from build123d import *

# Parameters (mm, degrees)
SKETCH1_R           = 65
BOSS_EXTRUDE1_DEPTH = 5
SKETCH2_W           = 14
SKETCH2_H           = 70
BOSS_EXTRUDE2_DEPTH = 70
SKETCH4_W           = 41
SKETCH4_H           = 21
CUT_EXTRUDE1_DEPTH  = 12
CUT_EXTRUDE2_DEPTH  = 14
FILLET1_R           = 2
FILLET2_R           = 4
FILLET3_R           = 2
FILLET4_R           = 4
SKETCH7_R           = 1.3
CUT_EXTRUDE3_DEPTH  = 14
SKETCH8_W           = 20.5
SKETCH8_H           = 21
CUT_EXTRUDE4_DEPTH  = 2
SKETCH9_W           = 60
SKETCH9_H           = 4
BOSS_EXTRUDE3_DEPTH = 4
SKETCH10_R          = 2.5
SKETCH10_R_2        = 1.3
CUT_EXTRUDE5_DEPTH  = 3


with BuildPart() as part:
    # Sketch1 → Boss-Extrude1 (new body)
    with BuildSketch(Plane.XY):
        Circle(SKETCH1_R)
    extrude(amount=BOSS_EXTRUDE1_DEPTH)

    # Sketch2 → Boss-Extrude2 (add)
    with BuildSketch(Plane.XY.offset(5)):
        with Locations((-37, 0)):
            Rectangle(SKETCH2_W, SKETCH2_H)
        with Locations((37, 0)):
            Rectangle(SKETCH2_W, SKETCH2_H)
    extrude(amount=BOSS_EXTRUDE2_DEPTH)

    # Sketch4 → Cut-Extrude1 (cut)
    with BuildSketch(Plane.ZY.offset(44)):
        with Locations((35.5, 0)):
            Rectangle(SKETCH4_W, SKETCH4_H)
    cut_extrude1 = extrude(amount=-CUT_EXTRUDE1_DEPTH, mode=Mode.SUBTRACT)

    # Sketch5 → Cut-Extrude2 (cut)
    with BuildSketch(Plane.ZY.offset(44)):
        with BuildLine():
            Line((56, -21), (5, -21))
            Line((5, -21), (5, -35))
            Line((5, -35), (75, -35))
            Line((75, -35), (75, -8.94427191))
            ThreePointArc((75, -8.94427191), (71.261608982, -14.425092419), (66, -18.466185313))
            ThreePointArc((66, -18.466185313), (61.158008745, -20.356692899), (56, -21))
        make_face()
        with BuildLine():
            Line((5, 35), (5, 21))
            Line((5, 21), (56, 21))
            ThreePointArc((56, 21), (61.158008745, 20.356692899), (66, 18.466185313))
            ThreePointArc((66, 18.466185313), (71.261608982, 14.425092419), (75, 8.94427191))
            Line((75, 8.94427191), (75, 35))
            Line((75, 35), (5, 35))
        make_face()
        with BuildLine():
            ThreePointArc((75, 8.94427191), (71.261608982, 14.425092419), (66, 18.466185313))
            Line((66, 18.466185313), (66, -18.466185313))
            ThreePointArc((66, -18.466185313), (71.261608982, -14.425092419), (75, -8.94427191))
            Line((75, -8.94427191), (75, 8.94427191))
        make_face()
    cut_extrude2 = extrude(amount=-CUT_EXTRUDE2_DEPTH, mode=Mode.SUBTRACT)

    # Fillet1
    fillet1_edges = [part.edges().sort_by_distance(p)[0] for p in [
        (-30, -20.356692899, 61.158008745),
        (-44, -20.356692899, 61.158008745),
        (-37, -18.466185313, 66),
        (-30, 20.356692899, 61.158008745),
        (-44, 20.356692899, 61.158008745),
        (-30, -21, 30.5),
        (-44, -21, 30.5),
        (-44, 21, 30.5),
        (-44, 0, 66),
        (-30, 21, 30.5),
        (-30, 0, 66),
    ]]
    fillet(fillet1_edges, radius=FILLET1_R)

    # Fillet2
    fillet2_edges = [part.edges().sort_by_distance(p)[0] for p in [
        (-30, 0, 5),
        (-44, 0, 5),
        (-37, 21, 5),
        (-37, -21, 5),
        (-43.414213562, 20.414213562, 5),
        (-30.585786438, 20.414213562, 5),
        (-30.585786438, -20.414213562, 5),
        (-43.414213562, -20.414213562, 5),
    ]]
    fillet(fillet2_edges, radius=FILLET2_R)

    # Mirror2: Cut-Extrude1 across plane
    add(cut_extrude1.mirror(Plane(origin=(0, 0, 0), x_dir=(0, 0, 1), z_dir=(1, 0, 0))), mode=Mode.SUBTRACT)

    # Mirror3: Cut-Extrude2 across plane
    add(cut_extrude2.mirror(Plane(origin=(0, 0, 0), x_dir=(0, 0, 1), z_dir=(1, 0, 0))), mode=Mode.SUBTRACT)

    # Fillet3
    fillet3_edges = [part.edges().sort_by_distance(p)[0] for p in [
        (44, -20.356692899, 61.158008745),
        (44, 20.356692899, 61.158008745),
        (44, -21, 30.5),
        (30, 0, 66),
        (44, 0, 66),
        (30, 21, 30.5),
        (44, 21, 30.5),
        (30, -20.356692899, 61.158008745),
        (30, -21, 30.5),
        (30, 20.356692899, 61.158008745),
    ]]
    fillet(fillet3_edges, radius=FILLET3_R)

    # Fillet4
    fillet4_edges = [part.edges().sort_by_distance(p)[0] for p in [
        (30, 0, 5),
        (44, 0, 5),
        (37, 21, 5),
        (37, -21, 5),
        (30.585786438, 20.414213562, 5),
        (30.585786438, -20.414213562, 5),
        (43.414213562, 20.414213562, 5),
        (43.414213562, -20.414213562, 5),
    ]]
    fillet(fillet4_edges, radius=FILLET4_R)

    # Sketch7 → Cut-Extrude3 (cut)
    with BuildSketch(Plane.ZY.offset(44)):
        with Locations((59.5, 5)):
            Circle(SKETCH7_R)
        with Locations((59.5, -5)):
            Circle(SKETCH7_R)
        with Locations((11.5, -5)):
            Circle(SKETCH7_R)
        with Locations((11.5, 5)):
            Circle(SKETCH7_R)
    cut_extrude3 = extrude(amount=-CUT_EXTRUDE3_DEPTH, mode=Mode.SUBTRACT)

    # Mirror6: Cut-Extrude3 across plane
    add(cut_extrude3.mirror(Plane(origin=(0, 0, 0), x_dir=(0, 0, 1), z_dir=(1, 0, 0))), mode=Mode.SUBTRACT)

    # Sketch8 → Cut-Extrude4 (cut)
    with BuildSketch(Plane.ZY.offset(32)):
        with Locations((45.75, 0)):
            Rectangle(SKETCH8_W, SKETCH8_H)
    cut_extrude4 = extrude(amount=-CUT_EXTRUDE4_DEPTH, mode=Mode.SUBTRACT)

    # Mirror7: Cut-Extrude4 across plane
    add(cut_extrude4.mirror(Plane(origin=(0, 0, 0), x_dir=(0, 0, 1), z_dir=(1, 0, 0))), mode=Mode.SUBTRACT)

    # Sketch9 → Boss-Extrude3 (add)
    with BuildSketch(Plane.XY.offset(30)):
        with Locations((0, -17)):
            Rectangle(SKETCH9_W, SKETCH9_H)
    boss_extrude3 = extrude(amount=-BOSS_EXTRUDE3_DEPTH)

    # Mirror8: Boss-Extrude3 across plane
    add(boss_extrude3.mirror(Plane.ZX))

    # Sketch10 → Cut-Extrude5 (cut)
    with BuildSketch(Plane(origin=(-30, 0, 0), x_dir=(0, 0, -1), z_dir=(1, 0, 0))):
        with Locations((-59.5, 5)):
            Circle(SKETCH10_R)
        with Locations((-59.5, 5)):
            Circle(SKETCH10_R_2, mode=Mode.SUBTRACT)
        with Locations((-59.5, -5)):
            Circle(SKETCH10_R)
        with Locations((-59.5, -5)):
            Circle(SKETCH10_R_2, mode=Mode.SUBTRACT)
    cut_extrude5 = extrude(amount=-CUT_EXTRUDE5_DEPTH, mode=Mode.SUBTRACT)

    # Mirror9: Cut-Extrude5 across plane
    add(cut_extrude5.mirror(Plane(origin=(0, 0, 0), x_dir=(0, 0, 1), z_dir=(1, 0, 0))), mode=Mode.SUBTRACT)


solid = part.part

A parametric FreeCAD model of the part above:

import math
import FreeCAD as App
import Part
import Sketcher
from FreeCAD import Vector


def edges_at(feature, points):
    """Names of the edges that pass closest to the given points."""
    edges = feature.Shape.Edges
    near = lambda p: min(range(len(edges)), key=lambda i: edges[i].distToShape(Part.Vertex(*p))[0])
    return sorted({f"Edge{near(p) + 1}" for p in points})


def add_polygon(sketch, points):
    """Adds a closed chain of lines whose ends are joined by coincident constraints."""
    first, n = sketch.GeometryCount, len(points)
    for a, b in zip(points, points[1:] + points[:1]):
        sketch.addGeometry(Part.LineSegment(App.Vector(*a, 0), App.Vector(*b, 0)), False)
    for i in range(n):
        sketch.addConstraint(Sketcher.Constraint("Coincident", first + i, 2, first + (i + 1) % n, 1))

doc = App.newDocument("Part")
body = doc.addObject("PartDesign::Body", "Body")

sketch1 = body.newObject("Sketcher::SketchObject", "Sketch")
sketch1.AttachmentSupport = (doc.getObject("XY_Plane"), [""])
sketch1.MapMode = "FlatFace"
sketch1.addGeometry(Part.Circle(Vector(0, 0, 0), Vector(0, 0, 1), 65), False)
sketch1.addConstraint([
    Sketcher.Constraint("Coincident", 0, 3, -1, 1),
    Sketcher.Constraint("Diameter", 0, 130.0),
])
pad1 = body.newObject("PartDesign::Pad", "Pad")
pad1.Profile = sketch1
pad1.Length = 5

sketch2 = body.newObject("Sketcher::SketchObject", "Sketch001")
sketch2.AttachmentSupport = (doc.getObject("XY_Plane"), [""])
sketch2.MapMode = "FlatFace"
sketch2.AttachmentOffset = App.Placement(Vector(0, 0, 5), App.Rotation())
add_polygon(sketch2, [(-44, 35), (-44, -35), (-30, -35), (-30, 35)])
add_polygon(sketch2, [(30, 35), (30, -35), (44, -35), (44, 35)])
sketch2.addConstraint([
    Sketcher.Constraint("Vertical", 0),
    Sketcher.Constraint("Horizontal", 1),
    Sketcher.Constraint("Vertical", 2),
    Sketcher.Constraint("Horizontal", 3),
    Sketcher.Constraint("Vertical", 4),
    Sketcher.Constraint("Horizontal", 5),
    Sketcher.Constraint("Vertical", 6),
    Sketcher.Constraint("Horizontal", 7),
    Sketcher.Constraint("Symmetric", 2, 2, 4, 2, -1, 1),
    Sketcher.Constraint("Symmetric", 0, 2, 6, 2, -1, 1),
    Sketcher.Constraint("Horizontal", 1, 2, 4, 2),
    Sketcher.Constraint("DistanceX", 1, 1, 1, 2, 14.0),
    Sketcher.Constraint("DistanceY", 0, 2, 0, 1, 70.0),
    Sketcher.Constraint("DistanceX", 0, 2, -1, 1, 44.0),
])
pad2 = body.newObject("PartDesign::Pad", "Pad001")
pad2.Profile = sketch2
pad2.Length = 70

sketch3 = body.newObject("Sketcher::SketchObject", "Sketch002")
sketch3.AttachmentSupport = (doc.getObject("YZ_Plane"), [""])
sketch3.MapMode = "FlatFace"
sketch3.AttachmentOffset = App.Placement(Vector(0, 0, -44), App.Rotation())
add_polygon(sketch3, [(10.5, 15), (-10.5, 15), (-10.5, 56), (10.5, 56)])
sketch3.addConstraint([
    Sketcher.Constraint("Horizontal", 0),
    Sketcher.Constraint("Vertical", 1),
    Sketcher.Constraint("Horizontal", 2),
    Sketcher.Constraint("Vertical", 3),
    Sketcher.Constraint("DistanceX", 0, 2, 0, 1, 21.0),
    Sketcher.Constraint("DistanceY", 1, 1, 1, 2, 41.0),
    Sketcher.Constraint("DistanceY", -1, 1, 0, 2, 15.0),
    Sketcher.Constraint("DistanceX", 0, 2, -1, 1, 10.5),
])
pocket1 = body.newObject("PartDesign::Pocket", "Pocket")
pocket1.Profile = sketch3
pocket1.Length = 12
pocket1.Reversed = True

sketch4 = body.newObject("Sketcher::SketchObject", "Sketch003")
sketch4.AttachmentSupport = (doc.getObject("YZ_Plane"), [""])
sketch4.MapMode = "FlatFace"
sketch4.AttachmentOffset = App.Placement(Vector(0, 0, -44), App.Rotation())
sketch4.addGeometry([
    Part.LineSegment(Vector(-21, 56, 0), Vector(-21, 5, 0)),
    Part.LineSegment(Vector(-21, 5, 0), Vector(-35, 5, 0)),
    Part.LineSegment(Vector(-35, 5, 0), Vector(-35, 75, 0)),
    Part.LineSegment(Vector(-35, 75, 0), Vector(35, 75, 0)),
    Part.LineSegment(Vector(35, 75, 0), Vector(35, 5, 0)),
    Part.LineSegment(Vector(35, 5, 0), Vector(21, 5, 0)),
    Part.LineSegment(Vector(21, 5, 0), Vector(21, 56, 0)),
    Part.ArcOfCircle(Part.Circle(Vector(0, 56, 0), Vector(0, 0, 1), 21), math.radians(0), math.radians(28.43689)),
    Part.LineSegment(Vector(18.466185, 66, 0), Vector(-18.466185, 66, 0)),
    Part.ArcOfCircle(Part.Circle(Vector(0, 56, 0), Vector(0, 0, 1), 21), math.radians(151.56311), math.radians(180)),
], False)
sketch4.addConstraint([
    Sketcher.Constraint("Coincident", 0, 2, 1, 1),
    Sketcher.Constraint("Coincident", 1, 2, 2, 1),
    Sketcher.Constraint("Coincident", 2, 2, 3, 1),
    Sketcher.Constraint("Coincident", 3, 2, 4, 1),
    Sketcher.Constraint("Coincident", 4, 2, 5, 1),
    Sketcher.Constraint("Coincident", 5, 2, 6, 1),
    Sketcher.Constraint("Tangent", 6, 2, 7, 1),
    Sketcher.Constraint("Coincident", 7, 2, 8, 1),
    Sketcher.Constraint("Coincident", 8, 2, 9, 1),
    Sketcher.Constraint("Tangent", 9, 2, 0, 1),
    Sketcher.Constraint("Vertical", 0),
    Sketcher.Constraint("Horizontal", 1),
    Sketcher.Constraint("Vertical", 2),
    Sketcher.Constraint("Horizontal", 3),
    Sketcher.Constraint("Vertical", 4),
    Sketcher.Constraint("Horizontal", 5),
    Sketcher.Constraint("Vertical", 6),
    Sketcher.Constraint("Horizontal", 8),
    Sketcher.Constraint("Coincident", 9, 3, 7, 3),
    Sketcher.Constraint("Equal", 7, 9),
    Sketcher.Constraint("Symmetric", 1, 2, 4, 2, -2),
    Sketcher.Constraint("PointOnObject", 7, 3, -2),
    Sketcher.Constraint("Equal", 3, 2),
    Sketcher.Constraint("Radius", 7, 21.0),
    Sketcher.Constraint("DistanceX", 1, 2, 1, 1, 14.0),
    Sketcher.Constraint("DistanceY", 0, 2, 0, 1, 51.0),
    Sketcher.Constraint("DistanceY", -1, 1, 7, 3, 56.0),
    Sketcher.Constraint("DistanceY", -1, 1, 7, 2, 66.0),
])
pocket2 = body.newObject("PartDesign::Pocket", "Pocket001")
pocket2.Profile = sketch4
pocket2.Length = 14
pocket2.Reversed = True
doc.recompute()

fillet = body.newObject("PartDesign::Fillet", "Fillet")
fillet.Base = (pocket2, edges_at(pocket2, [
    (-30, -20.357, 61.158),
    (-44, -20.357, 61.158),
    (-37, -18.466, 66),
    (-30, 20.357, 61.158),
    (-44, 20.357, 61.158),
    (-30, -21, 30.5),
    (-44, -21, 30.5),
    (-44, 21, 30.5),
    (-44, 0, 66),
    (-30, 21, 30.5),
    (-30, 0, 66),
]))
fillet.Radius = 2
doc.recompute()

fillet2 = body.newObject("PartDesign::Fillet", "Fillet001")
fillet2.Base = (fillet, edges_at(fillet, [
    (-30, 0, 5),
    (-44, 0, 5),
    (-37, 21, 5),
    (-37, -21, 5),
    (-43.414, 20.414, 5),
    (-30.586, 20.414, 5),
    (-30.586, -20.414, 5),
    (-43.414, -20.414, 5),
]))
fillet2.Radius = 4
doc.recompute()

mirrored = body.newObject("PartDesign::Mirrored", "Mirrored")
mirrored.Originals = [pocket1]
mirrored.MirrorPlane = (doc.getObject("YZ_Plane"), [""])
body.Tip = mirrored
doc.recompute()

mirrored2 = body.newObject("PartDesign::Mirrored", "Mirrored001")
mirrored2.Originals = [pocket2]
mirrored2.MirrorPlane = (doc.getObject("YZ_Plane"), [""])
body.Tip = mirrored2
doc.recompute()

fillet3 = body.newObject("PartDesign::Fillet", "Fillet002")
fillet3.Base = (mirrored2, edges_at(mirrored2, [
    (44, -20.357, 61.158),
    (44, 20.357, 61.158),
    (44, -21, 30.5),
    (30, 0, 66),
    (44, 0, 66),
    (30, 21, 30.5),
    (44, 21, 30.5),
    (30, -20.357, 61.158),
    (30, -21, 30.5),
    (30, 20.357, 61.158),
]))
fillet3.Radius = 2
doc.recompute()

fillet4 = body.newObject("PartDesign::Fillet", "Fillet003")
fillet4.Base = (fillet3, edges_at(fillet3, [
    (30, 0, 5),
    (44, 0, 5),
    (37, 21, 5),
    (37, -21, 5),
    (30.586, 20.414, 5),
    (30.586, -20.414, 5),
    (43.414, 20.414, 5),
    (43.414, -20.414, 5),
]))
fillet4.Radius = 4

sketch5 = body.newObject("Sketcher::SketchObject", "Sketch004")
sketch5.AttachmentSupport = (doc.getObject("YZ_Plane"), [""])
sketch5.MapMode = "FlatFace"
sketch5.AttachmentOffset = App.Placement(Vector(0, 0, -44), App.Rotation())
sketch5.addGeometry([
    Part.Circle(Vector(5, 59.5, 0), Vector(0, 0, 1), 1.3),
    Part.Circle(Vector(-5, 59.5, 0), Vector(0, 0, 1), 1.3),
    Part.Circle(Vector(-5, 11.5, 0), Vector(0, 0, 1), 1.3),
    Part.Circle(Vector(5, 11.5, 0), Vector(0, 0, 1), 1.3),
], False)
sketch5.addConstraint([
    Sketcher.Constraint("Equal", 0, 1),
    Sketcher.Constraint("Equal", 1, 2),
    Sketcher.Constraint("Equal", 2, 3),
    Sketcher.Constraint("Symmetric", 0, 3, 1, 3, -2),
    Sketcher.Constraint("Symmetric", 2, 3, 3, 3, -2),
    Sketcher.Constraint("Vertical", 1, 3, 2, 3),
    Sketcher.Constraint("Diameter", 0, 2.6),
    Sketcher.Constraint("DistanceX", -1, 1, 0, 3, 5.0),
    Sketcher.Constraint("DistanceY", 2, 3, 1, 3, 48.0),
    Sketcher.Constraint("DistanceY", -1, 1, 0, 3, 59.5),
])
pocket3 = body.newObject("PartDesign::Pocket", "Pocket002")
pocket3.Profile = sketch5
pocket3.Length = 14
pocket3.Reversed = True
doc.recompute()

mirrored3 = body.newObject("PartDesign::Mirrored", "Mirrored002")
mirrored3.Originals = [pocket3]
mirrored3.MirrorPlane = (doc.getObject("YZ_Plane"), [""])
body.Tip = mirrored3

sketch6 = body.newObject("Sketcher::SketchObject", "Sketch005")
sketch6.AttachmentSupport = (doc.getObject("YZ_Plane"), [""])
sketch6.MapMode = "FlatFace"
sketch6.AttachmentOffset = App.Placement(Vector(0, 0, -32), App.Rotation())
add_polygon(sketch6, [(10.5, 35.5), (-10.5, 35.5), (-10.5, 56), (10.5, 56)])
sketch6.addConstraint([
    Sketcher.Constraint("Horizontal", 0),
    Sketcher.Constraint("Vertical", 1),
    Sketcher.Constraint("Horizontal", 2),
    Sketcher.Constraint("Vertical", 3),
    Sketcher.Constraint("DistanceX", 0, 2, 0, 1, 21.0),
    Sketcher.Constraint("DistanceY", 1, 1, 1, 2, 20.5),
    Sketcher.Constraint("DistanceY", -1, 1, 1, 2, 56.0),
    Sketcher.Constraint("DistanceX", 0, 2, -1, 1, 10.5),
])
pocket4 = body.newObject("PartDesign::Pocket", "Pocket003")
pocket4.Profile = sketch6
pocket4.Length = 2
pocket4.Reversed = True
doc.recompute()

mirrored4 = body.newObject("PartDesign::Mirrored", "Mirrored003")
mirrored4.Originals = [pocket4]
mirrored4.MirrorPlane = (doc.getObject("YZ_Plane"), [""])
body.Tip = mirrored4

sketch7 = body.newObject("Sketcher::SketchObject", "Sketch006")
sketch7.AttachmentSupport = (doc.getObject("XY_Plane"), [""])
sketch7.MapMode = "FlatFace"
sketch7.AttachmentOffset = App.Placement(Vector(0, 0, 30), App.Rotation())
add_polygon(sketch7, [(-30, -15), (-30, -19), (30, -19), (30, -15)])
sketch7.addConstraint([
    Sketcher.Constraint("Vertical", 0),
    Sketcher.Constraint("Horizontal", 1),
    Sketcher.Constraint("Vertical", 2),
    Sketcher.Constraint("Horizontal", 3),
    Sketcher.Constraint("DistanceX", 1, 1, 1, 2, 60.0),
    Sketcher.Constraint("DistanceY", 0, 2, 0, 1, 4.0),
    Sketcher.Constraint("DistanceX", 0, 2, -1, 1, 30.0),
    Sketcher.Constraint("DistanceY", 0, 2, -1, 1, 19.0),
])
pad3 = body.newObject("PartDesign::Pad", "Pad002")
pad3.Profile = sketch7
pad3.Length = 4
pad3.Reversed = True
doc.recompute()

mirrored5 = body.newObject("PartDesign::Mirrored", "Mirrored004")
mirrored5.Originals = [pad3]
mirrored5.MirrorPlane = (doc.getObject("XZ_Plane"), [""])
body.Tip = mirrored5

sketch8 = body.newObject("Sketcher::SketchObject", "Sketch007")
sketch8.AttachmentSupport = (doc.getObject("YZ_Plane"), [""])
sketch8.MapMode = "FlatFace"
sketch8.AttachmentOffset = App.Placement(Vector(0, 0, -30), App.Rotation())
sketch8.addGeometry([
    Part.Circle(Vector(5, 59.5, 0), Vector(0, 0, 1), 2.5),
    Part.Circle(Vector(5, 59.5, 0), Vector(0, 0, 1), 1.3),
    Part.Circle(Vector(-5, 59.5, 0), Vector(0, 0, 1), 2.5),
    Part.Circle(Vector(-5, 59.5, 0), Vector(0, 0, 1), 1.3),
], False)
sketch8.addConstraint([
    Sketcher.Constraint("Coincident", 1, 3, 0, 3),
    Sketcher.Constraint("Coincident", 3, 3, 2, 3),
    Sketcher.Constraint("Equal", 0, 2),
    Sketcher.Constraint("Equal", 1, 3),
    Sketcher.Constraint("Symmetric", 0, 3, 2, 3, -2),
    Sketcher.Constraint("Diameter", 0, 5.0),
    Sketcher.Constraint("Diameter", 1, 2.6),
    Sketcher.Constraint("DistanceX", -1, 1, 0, 3, 5.0),
    Sketcher.Constraint("DistanceY", -1, 1, 0, 3, 59.5),
])
pocket5 = body.newObject("PartDesign::Pocket", "Pocket004")
pocket5.Profile = sketch8
pocket5.Length = 3
doc.recompute()

mirrored6 = body.newObject("PartDesign::Mirrored", "Mirrored005")
mirrored6.Originals = [pocket5]
mirrored6.MirrorPlane = (doc.getObject("YZ_Plane"), [""])
body.Tip = mirrored6

doc.recompute()
